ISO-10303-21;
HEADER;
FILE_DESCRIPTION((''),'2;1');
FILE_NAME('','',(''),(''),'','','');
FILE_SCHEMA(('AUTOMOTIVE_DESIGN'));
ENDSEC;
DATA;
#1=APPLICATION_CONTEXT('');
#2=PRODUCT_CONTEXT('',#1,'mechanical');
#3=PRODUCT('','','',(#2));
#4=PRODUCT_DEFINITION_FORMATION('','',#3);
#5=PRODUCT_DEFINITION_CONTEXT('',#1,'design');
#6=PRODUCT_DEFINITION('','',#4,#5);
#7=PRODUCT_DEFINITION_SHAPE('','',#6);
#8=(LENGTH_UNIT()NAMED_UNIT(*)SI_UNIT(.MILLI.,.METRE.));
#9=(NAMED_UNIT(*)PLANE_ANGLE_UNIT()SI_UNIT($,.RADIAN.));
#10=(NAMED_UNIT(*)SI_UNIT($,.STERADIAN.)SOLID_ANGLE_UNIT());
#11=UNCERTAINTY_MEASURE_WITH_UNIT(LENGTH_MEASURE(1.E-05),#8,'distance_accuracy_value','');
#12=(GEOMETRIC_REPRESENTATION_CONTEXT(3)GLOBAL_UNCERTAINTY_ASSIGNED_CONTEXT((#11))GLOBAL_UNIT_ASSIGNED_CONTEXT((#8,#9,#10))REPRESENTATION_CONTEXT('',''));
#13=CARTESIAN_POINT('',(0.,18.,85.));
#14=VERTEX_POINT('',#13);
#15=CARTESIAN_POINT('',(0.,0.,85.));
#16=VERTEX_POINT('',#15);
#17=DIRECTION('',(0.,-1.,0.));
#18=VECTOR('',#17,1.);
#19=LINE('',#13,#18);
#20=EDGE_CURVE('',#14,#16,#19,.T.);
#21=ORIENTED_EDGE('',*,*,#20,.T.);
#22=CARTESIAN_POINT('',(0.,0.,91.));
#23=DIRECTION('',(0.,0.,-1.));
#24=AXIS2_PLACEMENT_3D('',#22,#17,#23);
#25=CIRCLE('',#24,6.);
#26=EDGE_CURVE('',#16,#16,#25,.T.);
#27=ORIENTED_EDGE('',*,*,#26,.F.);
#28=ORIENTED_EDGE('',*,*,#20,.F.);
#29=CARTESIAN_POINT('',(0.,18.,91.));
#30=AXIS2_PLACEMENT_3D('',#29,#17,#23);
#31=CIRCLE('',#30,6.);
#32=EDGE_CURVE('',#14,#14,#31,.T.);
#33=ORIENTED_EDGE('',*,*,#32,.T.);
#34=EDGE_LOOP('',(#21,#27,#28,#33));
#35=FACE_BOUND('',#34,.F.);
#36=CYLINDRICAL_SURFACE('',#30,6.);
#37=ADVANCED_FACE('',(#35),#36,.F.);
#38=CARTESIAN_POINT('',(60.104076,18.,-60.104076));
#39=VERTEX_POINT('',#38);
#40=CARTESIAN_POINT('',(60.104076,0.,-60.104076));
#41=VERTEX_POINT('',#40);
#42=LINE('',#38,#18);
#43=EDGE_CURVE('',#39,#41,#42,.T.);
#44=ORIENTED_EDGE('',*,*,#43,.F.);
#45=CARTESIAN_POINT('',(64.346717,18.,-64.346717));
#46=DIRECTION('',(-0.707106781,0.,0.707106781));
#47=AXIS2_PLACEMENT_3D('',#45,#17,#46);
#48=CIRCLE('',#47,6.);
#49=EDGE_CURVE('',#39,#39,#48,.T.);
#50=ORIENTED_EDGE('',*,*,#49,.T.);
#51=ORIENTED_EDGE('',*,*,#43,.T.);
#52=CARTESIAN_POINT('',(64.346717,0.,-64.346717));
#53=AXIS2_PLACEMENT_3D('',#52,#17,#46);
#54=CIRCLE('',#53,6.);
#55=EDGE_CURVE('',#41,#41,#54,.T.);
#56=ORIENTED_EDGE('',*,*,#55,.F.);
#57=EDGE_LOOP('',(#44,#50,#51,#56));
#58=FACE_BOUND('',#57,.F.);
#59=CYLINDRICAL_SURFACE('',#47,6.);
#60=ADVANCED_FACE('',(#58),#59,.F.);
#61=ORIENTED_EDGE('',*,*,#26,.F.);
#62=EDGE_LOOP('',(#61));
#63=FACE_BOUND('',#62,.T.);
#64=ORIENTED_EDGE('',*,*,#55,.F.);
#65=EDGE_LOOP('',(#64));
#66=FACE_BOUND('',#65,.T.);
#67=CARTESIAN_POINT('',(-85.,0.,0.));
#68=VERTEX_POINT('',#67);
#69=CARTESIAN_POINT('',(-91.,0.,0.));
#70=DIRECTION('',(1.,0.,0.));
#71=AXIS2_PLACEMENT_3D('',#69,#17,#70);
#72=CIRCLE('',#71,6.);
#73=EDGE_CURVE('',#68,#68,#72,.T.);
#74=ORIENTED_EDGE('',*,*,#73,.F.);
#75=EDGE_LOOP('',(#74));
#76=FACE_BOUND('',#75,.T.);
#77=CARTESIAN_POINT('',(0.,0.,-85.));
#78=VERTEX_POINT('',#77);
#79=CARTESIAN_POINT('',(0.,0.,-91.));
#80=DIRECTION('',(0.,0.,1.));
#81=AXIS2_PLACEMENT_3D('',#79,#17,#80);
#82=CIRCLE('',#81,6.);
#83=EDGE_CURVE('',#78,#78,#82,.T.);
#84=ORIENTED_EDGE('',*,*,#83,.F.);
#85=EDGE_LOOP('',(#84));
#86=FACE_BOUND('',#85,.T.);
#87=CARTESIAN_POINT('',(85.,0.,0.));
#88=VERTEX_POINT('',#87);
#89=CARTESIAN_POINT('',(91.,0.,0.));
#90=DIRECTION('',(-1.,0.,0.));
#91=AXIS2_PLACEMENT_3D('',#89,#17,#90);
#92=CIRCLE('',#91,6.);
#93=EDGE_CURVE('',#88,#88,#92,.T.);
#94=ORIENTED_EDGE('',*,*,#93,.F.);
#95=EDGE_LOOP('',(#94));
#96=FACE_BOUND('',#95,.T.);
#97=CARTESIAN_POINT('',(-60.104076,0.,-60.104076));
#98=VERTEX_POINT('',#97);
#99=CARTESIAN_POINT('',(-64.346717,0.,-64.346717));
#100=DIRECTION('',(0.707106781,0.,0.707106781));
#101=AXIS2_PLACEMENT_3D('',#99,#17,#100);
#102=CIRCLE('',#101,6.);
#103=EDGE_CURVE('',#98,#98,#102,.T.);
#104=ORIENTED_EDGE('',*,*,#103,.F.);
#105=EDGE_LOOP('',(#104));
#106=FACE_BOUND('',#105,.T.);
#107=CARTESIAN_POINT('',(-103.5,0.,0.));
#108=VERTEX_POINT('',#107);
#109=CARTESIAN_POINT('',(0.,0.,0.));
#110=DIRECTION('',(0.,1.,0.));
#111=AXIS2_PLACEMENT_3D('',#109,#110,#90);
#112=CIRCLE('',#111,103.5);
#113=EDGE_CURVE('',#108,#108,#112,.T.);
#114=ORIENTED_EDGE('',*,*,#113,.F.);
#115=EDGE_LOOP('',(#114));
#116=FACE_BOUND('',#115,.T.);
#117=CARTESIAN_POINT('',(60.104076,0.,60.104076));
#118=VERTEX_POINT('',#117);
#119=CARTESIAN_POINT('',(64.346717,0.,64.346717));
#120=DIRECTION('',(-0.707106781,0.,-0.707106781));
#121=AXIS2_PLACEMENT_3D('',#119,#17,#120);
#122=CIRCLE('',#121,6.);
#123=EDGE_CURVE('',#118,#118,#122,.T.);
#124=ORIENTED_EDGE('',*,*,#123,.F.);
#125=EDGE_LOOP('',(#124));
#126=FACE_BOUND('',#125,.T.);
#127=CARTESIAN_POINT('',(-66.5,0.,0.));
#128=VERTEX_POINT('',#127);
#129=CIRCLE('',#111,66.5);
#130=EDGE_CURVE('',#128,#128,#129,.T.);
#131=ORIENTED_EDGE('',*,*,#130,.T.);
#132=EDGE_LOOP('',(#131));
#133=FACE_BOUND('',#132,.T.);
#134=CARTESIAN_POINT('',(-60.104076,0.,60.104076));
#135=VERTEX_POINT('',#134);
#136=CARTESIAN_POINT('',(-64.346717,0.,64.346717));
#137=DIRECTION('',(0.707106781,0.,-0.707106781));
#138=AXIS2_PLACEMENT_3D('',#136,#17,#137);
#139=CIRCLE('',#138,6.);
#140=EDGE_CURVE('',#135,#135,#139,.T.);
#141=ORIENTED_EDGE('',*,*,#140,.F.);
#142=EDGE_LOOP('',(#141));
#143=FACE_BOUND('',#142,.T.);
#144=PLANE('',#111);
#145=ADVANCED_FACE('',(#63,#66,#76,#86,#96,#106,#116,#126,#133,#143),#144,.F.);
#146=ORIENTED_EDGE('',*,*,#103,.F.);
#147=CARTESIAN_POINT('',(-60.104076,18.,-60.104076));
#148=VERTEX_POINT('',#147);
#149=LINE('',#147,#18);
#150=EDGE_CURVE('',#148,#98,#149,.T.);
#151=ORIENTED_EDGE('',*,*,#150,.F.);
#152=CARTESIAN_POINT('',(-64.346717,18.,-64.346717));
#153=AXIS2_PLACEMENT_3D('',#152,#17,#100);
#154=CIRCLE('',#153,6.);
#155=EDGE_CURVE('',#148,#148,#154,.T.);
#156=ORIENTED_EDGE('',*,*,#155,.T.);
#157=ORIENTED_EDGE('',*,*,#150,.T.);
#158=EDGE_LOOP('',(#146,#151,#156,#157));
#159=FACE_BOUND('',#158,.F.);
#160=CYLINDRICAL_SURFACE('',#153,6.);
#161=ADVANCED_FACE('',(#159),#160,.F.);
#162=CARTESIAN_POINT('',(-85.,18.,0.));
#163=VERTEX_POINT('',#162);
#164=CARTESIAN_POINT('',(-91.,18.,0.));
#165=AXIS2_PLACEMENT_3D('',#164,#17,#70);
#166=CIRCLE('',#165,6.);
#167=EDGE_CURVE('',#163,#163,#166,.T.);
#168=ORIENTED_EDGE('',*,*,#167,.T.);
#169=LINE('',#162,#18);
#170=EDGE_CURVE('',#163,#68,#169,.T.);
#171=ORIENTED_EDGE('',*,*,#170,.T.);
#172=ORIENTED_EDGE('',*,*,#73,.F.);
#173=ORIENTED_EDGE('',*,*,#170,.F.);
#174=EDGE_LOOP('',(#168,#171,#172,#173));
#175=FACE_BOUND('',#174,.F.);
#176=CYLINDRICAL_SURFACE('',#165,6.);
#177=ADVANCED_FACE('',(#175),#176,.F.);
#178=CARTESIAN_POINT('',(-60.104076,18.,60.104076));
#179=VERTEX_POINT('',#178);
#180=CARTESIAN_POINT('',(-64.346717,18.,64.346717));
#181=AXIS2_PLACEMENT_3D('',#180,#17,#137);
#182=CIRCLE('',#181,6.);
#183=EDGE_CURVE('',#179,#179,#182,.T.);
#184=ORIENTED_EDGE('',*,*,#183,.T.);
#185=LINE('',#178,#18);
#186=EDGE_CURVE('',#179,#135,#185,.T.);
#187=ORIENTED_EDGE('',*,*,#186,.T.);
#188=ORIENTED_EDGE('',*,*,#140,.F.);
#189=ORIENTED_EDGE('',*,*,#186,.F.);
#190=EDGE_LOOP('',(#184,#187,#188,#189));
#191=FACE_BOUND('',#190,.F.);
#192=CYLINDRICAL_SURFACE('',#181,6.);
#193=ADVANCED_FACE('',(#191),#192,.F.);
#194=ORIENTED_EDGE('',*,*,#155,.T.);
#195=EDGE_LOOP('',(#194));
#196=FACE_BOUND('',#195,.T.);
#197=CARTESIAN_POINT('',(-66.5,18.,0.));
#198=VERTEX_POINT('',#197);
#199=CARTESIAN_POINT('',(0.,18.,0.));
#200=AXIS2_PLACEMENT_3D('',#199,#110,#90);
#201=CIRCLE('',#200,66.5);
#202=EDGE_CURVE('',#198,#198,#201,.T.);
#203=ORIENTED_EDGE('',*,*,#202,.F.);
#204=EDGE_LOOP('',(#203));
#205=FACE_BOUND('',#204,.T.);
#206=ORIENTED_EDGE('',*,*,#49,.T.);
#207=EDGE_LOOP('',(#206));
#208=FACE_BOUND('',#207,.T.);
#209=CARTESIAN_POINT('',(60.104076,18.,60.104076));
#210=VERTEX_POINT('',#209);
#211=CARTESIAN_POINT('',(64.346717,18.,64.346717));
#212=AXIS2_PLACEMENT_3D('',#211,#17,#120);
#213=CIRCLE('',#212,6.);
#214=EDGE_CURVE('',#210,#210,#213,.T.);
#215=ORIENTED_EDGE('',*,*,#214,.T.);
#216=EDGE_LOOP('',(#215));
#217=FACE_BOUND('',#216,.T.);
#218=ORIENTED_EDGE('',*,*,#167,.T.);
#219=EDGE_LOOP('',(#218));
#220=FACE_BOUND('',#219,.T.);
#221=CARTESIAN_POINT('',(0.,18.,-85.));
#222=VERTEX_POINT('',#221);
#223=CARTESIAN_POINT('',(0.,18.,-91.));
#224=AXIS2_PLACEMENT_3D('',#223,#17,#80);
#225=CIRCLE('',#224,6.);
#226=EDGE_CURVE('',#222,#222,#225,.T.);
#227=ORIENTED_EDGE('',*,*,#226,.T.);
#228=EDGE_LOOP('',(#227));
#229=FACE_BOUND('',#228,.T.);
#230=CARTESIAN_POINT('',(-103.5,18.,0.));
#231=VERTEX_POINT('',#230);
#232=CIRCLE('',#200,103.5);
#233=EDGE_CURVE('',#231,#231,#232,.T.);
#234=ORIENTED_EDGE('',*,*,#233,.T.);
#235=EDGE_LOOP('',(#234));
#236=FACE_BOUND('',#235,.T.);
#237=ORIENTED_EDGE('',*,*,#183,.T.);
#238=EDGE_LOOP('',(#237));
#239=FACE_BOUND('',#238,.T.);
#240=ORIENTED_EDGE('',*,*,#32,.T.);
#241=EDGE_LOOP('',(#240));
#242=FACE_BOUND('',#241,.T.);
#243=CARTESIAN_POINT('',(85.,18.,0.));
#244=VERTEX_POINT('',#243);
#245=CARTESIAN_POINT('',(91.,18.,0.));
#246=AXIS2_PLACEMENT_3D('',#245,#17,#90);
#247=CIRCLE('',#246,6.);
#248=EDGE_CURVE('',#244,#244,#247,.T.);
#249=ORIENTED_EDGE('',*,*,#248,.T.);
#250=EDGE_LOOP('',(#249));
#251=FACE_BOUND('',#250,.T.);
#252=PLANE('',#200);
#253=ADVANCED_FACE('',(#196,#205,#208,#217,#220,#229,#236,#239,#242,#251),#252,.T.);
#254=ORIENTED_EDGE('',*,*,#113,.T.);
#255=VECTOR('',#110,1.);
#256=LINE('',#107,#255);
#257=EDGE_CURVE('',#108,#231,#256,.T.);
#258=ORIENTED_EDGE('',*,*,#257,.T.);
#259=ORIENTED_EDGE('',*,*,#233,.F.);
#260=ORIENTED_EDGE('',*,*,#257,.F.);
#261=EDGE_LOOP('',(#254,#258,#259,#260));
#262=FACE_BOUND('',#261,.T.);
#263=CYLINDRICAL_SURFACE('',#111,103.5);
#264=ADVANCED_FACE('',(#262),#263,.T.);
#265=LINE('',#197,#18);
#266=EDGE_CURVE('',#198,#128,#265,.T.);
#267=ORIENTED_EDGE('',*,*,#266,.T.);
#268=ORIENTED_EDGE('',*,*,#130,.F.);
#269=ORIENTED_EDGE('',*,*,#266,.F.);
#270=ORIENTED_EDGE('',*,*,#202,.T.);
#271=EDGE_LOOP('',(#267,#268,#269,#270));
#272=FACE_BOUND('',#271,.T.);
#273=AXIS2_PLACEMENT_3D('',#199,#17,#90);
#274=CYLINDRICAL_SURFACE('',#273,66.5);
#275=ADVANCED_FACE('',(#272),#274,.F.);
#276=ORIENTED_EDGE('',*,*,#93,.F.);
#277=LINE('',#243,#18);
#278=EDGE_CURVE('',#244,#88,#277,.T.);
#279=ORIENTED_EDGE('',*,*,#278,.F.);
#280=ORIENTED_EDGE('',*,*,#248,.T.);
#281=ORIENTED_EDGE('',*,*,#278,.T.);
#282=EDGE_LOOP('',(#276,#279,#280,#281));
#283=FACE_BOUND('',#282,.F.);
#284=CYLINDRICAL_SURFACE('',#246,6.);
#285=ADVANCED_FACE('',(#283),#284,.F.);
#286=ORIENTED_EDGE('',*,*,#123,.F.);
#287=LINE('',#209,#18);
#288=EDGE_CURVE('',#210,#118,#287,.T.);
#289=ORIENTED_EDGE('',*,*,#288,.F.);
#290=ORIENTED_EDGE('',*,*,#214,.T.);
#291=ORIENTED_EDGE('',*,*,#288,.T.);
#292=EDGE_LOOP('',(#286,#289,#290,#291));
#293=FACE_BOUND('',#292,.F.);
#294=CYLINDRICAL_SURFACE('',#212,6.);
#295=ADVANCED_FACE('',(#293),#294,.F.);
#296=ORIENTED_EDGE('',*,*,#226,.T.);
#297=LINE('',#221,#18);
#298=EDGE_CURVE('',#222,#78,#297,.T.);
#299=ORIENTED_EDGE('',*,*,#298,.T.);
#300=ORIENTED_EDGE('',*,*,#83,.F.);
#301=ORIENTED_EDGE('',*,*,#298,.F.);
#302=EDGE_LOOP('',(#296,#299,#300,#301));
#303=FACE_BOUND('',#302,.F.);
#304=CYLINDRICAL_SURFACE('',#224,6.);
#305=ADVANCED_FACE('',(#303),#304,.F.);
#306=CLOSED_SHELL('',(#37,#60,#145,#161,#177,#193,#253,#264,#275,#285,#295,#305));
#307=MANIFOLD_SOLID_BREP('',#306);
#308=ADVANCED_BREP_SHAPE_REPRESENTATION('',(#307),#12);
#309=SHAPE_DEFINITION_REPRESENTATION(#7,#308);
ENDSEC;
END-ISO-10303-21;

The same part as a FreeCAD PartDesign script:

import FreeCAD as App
import Part
import Sketcher
Q = App.Units.Quantity

doc = App.newDocument("Part")
body = doc.addObject("PartDesign::Body", "Body")

# Sketch on XY plane
sketch1 = body.newObject("Sketcher::SketchObject", "Sketch")
sketch1.AttachmentSupport = (doc.getObject("XY_Plane"), [""])
sketch1.MapMode = "FlatFace"
sketch1.addGeometry([
    Part.LineSegment(App.Vector(-104, 0, 0), App.Vector(-66, 0, 0)),
    Part.LineSegment(App.Vector(-66, 0, 0), App.Vector(-66, 18, 0)),
    Part.LineSegment(App.Vector(-66, 18, 0), App.Vector(-104, 18, 0)),
    Part.LineSegment(App.Vector(-104, 18, 0), App.Vector(-104, 0, 0)),
], False)
sketch1.addConstraint([
    Sketcher.Constraint("Coincident", 0, 2, 1, 1),
    Sketcher.Constraint("Coincident", 1, 2, 2, 1),
    Sketcher.Constraint("Coincident", 2, 2, 3, 1),
    Sketcher.Constraint("Coincident", 3, 2, 0, 1),
    Sketcher.Constraint("Horizontal", 0),
    Sketcher.Constraint("Vertical", 1),
    Sketcher.Constraint("Horizontal", 2),
    Sketcher.Constraint("Vertical", 3),
    Sketcher.Constraint("PointOnObject", 0, 2, -1),
    Sketcher.Constraint("DistanceY", 1, 1, 1, 2, Q("18 mm")),
    Sketcher.Constraint("DistanceX", 0, 2, -1, 1, Q("66.5 mm")),
    Sketcher.Constraint("DistanceX", 2, 2, -1, 1, Q("103.5 mm")),
])
revolution = body.newObject("PartDesign::Revolution", "Revolution")
revolution.Profile = sketch1
revolution.ReferenceAxis = (sketch1, ["V_Axis"])
revolution.Angle = 360

# Sketch on XZ plane
sketch2 = body.newObject("Sketcher::SketchObject", "Sketch001")
sketch2.AttachmentSupport = (doc.getObject("XZ_Plane"), [""])
sketch2.MapMode = "FlatFace"
sketch2.AttachmentOffset = App.Placement(App.Vector(0, 0, -18), App.Rotation())
sketch2.addGeometry(Part.Circle(App.Vector(0, -91, 0), App.Vector(0, 0, 1), 6), False)
sketch2.addConstraint([
    Sketcher.Constraint("PointOnObject", 0, 3, -2),
    Sketcher.Constraint("Diameter", 0, Q("12 mm")),
    Sketcher.Constraint("DistanceY", 0, 3, -1, 1, Q("91 mm")),
])
doc.recompute()
hole = body.newObject("PartDesign::Hole", "Hole")
hole.Profile = sketch2
hole.ThreadType = "None"
hole.Diameter = 12
hole.DepthType = "ThroughAll"
hole.Reversed = True
doc.recompute()

polarpattern = body.newObject("PartDesign::PolarPattern", "PolarPattern")
polarpattern.Originals = [hole]
polarpattern.Axis = (doc.getObject("Y_Axis"), [""])
polarpattern.Angle = 360
polarpattern.Occurrences = 8
body.Tip = polarpattern

doc.recompute()
